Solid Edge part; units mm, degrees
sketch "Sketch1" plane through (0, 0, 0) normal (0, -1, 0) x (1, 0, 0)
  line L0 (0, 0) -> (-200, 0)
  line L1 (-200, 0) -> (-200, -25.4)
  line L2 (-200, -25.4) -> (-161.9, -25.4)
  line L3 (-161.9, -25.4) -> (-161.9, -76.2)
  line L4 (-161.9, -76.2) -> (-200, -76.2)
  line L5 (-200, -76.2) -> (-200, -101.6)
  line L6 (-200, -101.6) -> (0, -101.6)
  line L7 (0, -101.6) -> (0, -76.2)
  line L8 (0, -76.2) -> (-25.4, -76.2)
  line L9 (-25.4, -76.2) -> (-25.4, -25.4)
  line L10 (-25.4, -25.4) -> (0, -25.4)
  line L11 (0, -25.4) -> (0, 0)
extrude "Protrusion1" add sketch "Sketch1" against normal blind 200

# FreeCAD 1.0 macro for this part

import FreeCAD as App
import Part
import Sketcher

V = App.Vector
Q = App.Units.Quantity


def add_polygon(sketch, points):
    """Adds a closed chain of lines whose ends are joined by coincident constraints."""
    first, n = sketch.GeometryCount, len(points)
    for a, b in zip(points, points[1:] + points[:1]):
        sketch.addGeometry(Part.LineSegment(App.Vector(*a, 0), App.Vector(*b, 0)), False)
    for i in range(n):
        sketch.addConstraint(Sketcher.Constraint("Coincident", first + i, 2, first + (i + 1) % n, 1))

doc = App.newDocument("Part")
body = doc.addObject("PartDesign::Body", "Body")

# Sketch on XZ plane
sketch1 = body.newObject("Sketcher::SketchObject", "Sketch")
sketch1.AttachmentSupport = (doc.getObject("XZ_Plane"), [""])
sketch1.MapMode = "FlatFace"
add_polygon(sketch1, [(0, -25), (0, 0), (-200, 0), (-200, -25), (-162, -25), (-162, -76), (-200, -76), (-200, -102), (0, -102), (0, -76), (-25, -76), (-25, -25)])  # lines 0-11
sketch1.addConstraint(Sketcher.Constraint("Vertical", 0))
sketch1.addConstraint(Sketcher.Constraint("Horizontal", 1))
sketch1.addConstraint(Sketcher.Constraint("Vertical", 2))
sketch1.addConstraint(Sketcher.Constraint("Horizontal", 3))
sketch1.addConstraint(Sketcher.Constraint("Vertical", 4))
sketch1.addConstraint(Sketcher.Constraint("Horizontal", 5))
sketch1.addConstraint(Sketcher.Constraint("Vertical", 6))
sketch1.addConstraint(Sketcher.Constraint("Horizontal", 7))
sketch1.addConstraint(Sketcher.Constraint("Vertical", 8))
sketch1.addConstraint(Sketcher.Constraint("Horizontal", 9))
sketch1.addConstraint(Sketcher.Constraint("Vertical", 10))
sketch1.addConstraint(Sketcher.Constraint("Horizontal", 11))
sketch1.addConstraint(Sketcher.Constraint("Coincident", 0, 2, -1, 1))
sketch1.addConstraint(Sketcher.Constraint("PointOnObject", 7, 2, -2))
sketch1.addConstraint(Sketcher.Constraint("Horizontal", 5, 2, 8, 2))
sketch1.addConstraint(Sketcher.Constraint("Horizontal", 3, 2, 10, 2))
sketch1.addConstraint(Sketcher.Constraint("Vertical", 2, 2, 5, 2))
sketch1.addConstraint(Sketcher.Constraint("Equal", 11, 0))
sketch1.addConstraint(Sketcher.Constraint("Equal", 2, 6))
sketch1.addConstraint(Sketcher.Constraint("DistanceX", 9, 2, 9, 1, Q("1 in")))
sketch1.addConstraint(Sketcher.Constraint("DistanceY", 4, 2, 4, 1, Q("2 in")))
sketch1.addConstraint(Sketcher.Constraint("DistanceX", 3, 1, 3, 2, Q("1.5 in")))
sketch1.addConstraint(Sketcher.Constraint("DistanceX", 1, 2, 1, 1, 200.0))
pad1 = body.newObject("PartDesign::Pad", "Pad")
pad1.Profile = sketch1
pad1.Length = 200
pad1.Reversed = True

doc.recompute()
